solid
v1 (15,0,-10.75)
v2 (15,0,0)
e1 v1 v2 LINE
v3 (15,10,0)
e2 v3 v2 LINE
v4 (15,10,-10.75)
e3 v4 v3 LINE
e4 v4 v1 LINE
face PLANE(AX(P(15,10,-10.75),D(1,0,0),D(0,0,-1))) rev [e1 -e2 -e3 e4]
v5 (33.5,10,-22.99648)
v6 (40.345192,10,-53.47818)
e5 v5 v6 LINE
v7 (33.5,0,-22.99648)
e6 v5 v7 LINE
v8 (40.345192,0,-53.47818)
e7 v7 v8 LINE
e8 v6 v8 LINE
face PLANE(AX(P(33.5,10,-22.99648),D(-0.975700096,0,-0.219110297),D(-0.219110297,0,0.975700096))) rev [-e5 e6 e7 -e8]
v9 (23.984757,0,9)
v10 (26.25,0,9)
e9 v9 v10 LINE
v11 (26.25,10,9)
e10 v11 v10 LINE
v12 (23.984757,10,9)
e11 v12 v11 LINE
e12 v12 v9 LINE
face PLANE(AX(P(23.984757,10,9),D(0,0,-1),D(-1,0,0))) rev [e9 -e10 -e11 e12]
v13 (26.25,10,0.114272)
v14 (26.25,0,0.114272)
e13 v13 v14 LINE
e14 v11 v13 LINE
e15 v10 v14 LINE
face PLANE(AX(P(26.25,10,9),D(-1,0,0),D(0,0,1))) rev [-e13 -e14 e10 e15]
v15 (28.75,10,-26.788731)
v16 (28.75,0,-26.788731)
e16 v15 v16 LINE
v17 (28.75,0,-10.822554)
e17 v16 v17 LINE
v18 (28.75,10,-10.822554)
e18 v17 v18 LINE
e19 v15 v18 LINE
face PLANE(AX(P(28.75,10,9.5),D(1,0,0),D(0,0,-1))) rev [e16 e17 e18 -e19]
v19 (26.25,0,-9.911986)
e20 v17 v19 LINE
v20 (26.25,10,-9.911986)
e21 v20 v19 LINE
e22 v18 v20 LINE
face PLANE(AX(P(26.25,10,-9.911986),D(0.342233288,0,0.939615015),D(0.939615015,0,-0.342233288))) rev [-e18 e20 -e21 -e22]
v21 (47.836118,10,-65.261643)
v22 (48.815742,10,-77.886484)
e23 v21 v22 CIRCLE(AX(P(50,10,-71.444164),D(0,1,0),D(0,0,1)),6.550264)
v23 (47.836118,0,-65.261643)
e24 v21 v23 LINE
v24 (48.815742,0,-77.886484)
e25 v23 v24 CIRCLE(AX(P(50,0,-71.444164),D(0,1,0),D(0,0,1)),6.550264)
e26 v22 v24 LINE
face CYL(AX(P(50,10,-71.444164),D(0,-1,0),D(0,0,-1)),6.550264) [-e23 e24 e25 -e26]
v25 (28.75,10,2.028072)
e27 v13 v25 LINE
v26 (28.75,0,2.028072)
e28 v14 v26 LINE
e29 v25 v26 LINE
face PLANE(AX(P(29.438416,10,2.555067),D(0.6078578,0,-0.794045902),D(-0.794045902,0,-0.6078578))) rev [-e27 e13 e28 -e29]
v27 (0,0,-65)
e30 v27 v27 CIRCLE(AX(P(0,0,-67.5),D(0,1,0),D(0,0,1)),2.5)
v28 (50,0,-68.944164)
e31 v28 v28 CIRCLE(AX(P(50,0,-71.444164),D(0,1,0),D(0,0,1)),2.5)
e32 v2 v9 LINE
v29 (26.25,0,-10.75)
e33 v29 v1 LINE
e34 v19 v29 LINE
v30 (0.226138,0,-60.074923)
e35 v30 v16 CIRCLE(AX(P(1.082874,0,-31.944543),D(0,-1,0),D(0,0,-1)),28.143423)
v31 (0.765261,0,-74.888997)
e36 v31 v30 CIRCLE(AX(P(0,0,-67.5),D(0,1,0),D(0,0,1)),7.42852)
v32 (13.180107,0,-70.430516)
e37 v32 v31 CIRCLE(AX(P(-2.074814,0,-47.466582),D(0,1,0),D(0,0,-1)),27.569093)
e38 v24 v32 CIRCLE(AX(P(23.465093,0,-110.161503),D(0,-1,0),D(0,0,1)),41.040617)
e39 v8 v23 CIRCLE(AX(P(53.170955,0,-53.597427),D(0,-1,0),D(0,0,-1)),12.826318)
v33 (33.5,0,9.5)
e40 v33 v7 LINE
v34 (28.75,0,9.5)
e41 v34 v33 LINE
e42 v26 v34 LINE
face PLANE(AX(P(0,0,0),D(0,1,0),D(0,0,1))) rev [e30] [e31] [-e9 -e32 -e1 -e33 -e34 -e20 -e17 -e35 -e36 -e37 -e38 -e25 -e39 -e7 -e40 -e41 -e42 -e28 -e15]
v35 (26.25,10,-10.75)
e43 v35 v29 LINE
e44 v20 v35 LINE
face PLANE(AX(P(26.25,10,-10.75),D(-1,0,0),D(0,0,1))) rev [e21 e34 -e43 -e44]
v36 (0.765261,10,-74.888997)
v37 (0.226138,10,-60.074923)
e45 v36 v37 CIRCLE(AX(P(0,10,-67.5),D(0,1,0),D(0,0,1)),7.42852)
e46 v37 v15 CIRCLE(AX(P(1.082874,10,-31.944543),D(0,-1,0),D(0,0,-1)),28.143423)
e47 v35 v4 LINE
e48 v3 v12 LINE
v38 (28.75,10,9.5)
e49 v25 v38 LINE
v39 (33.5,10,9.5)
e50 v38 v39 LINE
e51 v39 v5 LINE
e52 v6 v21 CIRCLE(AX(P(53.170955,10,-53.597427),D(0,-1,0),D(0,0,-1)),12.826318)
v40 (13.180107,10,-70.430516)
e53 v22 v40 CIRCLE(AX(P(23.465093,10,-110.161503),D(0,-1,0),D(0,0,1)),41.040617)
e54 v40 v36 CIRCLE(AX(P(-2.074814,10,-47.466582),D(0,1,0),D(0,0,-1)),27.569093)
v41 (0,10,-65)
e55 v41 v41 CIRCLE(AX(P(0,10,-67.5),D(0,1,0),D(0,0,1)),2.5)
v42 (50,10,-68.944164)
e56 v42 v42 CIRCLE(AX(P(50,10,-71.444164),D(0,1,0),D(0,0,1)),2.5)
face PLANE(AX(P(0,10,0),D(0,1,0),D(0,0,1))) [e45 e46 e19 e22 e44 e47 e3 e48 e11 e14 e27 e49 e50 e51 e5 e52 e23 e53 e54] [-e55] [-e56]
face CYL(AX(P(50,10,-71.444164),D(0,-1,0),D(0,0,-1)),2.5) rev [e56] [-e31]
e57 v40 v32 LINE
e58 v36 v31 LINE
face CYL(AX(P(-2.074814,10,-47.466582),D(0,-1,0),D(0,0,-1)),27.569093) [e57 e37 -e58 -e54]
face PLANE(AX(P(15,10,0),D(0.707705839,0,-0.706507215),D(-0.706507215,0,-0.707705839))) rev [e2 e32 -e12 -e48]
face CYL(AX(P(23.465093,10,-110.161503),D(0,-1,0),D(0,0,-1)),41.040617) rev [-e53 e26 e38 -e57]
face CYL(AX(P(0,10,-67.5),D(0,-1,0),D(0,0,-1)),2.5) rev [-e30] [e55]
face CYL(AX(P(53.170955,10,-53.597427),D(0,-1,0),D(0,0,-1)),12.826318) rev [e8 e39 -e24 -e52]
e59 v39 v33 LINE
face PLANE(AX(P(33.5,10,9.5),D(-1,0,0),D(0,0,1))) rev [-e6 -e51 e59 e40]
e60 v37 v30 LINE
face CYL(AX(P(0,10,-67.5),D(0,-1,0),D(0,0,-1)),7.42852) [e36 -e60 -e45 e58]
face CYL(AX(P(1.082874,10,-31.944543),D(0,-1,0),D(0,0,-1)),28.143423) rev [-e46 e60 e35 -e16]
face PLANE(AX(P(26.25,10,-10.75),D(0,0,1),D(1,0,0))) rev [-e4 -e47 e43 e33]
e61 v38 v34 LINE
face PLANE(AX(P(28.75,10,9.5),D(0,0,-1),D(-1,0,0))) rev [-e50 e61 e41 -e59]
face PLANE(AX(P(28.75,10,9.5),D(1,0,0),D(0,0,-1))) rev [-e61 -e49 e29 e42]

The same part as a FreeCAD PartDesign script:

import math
import FreeCAD as App
import Part
import Sketcher

V = App.Vector
Q = App.Units.Quantity


def add_polygon(sketch, points):
    """Adds a closed chain of lines whose ends are joined by coincident constraints."""
    first, n = sketch.GeometryCount, len(points)
    for a, b in zip(points, points[1:] + points[:1]):
        sketch.addGeometry(Part.LineSegment(App.Vector(*a, 0), App.Vector(*b, 0)), False)
    for i in range(n):
        sketch.addConstraint(Sketcher.Constraint("Coincident", first + i, 2, first + (i + 1) % n, 1))

doc = App.newDocument("Part")
body = doc.addObject("PartDesign::Body", "Body")

sketch1 = body.newObject("Sketcher::SketchObject", "Sketch")
sketch1.AttachmentSupport = (doc.getObject("XZ_Plane"), [""])
sketch1.MapMode = "FlatFace"
add_polygon(sketch1, [(-15, -10.8), (-26.2, -10.8), (-26.2, -9.9), (-29.4, -11.1), (-29.4, 2.6), (-26.2, 0.1), (-26.2, 9), (-24, 9), (-15, 0)])
sketch1.addConstraint([
    Sketcher.Constraint("Horizontal", 0),
    Sketcher.Constraint("Vertical", 1),
    Sketcher.Constraint("Vertical", 3),
    Sketcher.Constraint("Vertical", 5),
    Sketcher.Constraint("Horizontal", 6),
    Sketcher.Constraint("Vertical", 8),
    Sketcher.Constraint("PointOnObject", 7, 2, -1),
    Sketcher.Constraint("Vertical", 1, 2, 4, 2),
    Sketcher.Constraint("DistanceY", -1, 1, 5, 2, Q("9 mm")),
    Sketcher.Constraint("DistanceX", 7, 2, -1, 1, Q("15 mm")),
    Sketcher.Constraint("DistanceX", 0, 2, 0, 1, Q("11.25 mm")),
    Sketcher.Constraint("DistanceY", 8, 2, 8, 1, Q("10.75 mm")),
    Sketcher.Constraint("DistanceY", 3, 1, 3, 2, Q("13.628361 mm")),
    Sketcher.Constraint("Distance", 2, Q("3.393321 mm")),
    Sketcher.Constraint("Distance", 7, Q("12.717148 mm")),
    Sketcher.Constraint("DistanceY", 1, 1, 1, 2, Q("0.838014 mm")),
    Sketcher.Constraint("DistanceY", 5, 1, 5, 2, Q("8.885728 mm")),
    Sketcher.Constraint("DistanceX", 3, 2, 6, 2, Q("5.453659 mm")),
])
pad1 = body.newObject("PartDesign::Pad", "Pad")
pad1.Profile = sketch1
pad1.Length = 10
pad1.Reversed = True

sketch2 = body.newObject("Sketcher::SketchObject", "Sketch001")
sketch2.AttachmentSupport = (doc.getObject("XZ_Plane"), [""])
sketch2.MapMode = "FlatFace"
sketch2.addGeometry(Part.Circle(V(-21, -4, 0), V(0, 0, 1), 23), False)
sketch2.addConstraint([
    Sketcher.Constraint("Diameter", 0, Q("45.678597 mm")),
    Sketcher.Constraint("DistanceX", 0, 3, -1, 1, Q("20.905433 mm")),
    Sketcher.Constraint("DistanceY", 0, 3, -1, 1, Q("4.192616 mm")),
])
pocket1 = body.newObject("PartDesign::Pocket", "Pocket")
pocket1.Profile = sketch2
pocket1.Length = 10
body2 = doc.addObject("PartDesign::Body", "Body001")

sketch3 = body2.newObject("Sketcher::SketchObject", "Sketch002")
sketch3.AttachmentSupport = (doc.getObject("XZ_Plane001"), [""])
sketch3.MapMode = "FlatFace"
add_polygon(sketch3, [(26.2, -9.9), (26.2, -10.8), (15, -10.8), (15, 0), (24, 9), (26.2, 9), (26.2, 0.1), (29.4, 2.6), (29.4, -11.1)])
sketch3.addConstraint([
    Sketcher.Constraint("Vertical", 0),
    Sketcher.Constraint("Horizontal", 1),
    Sketcher.Constraint("Vertical", 2),
    Sketcher.Constraint("Horizontal", 4),
    Sketcher.Constraint("Vertical", 5),
    Sketcher.Constraint("Vertical", 7),
    Sketcher.Constraint("PointOnObject", 2, 2, -1),
    Sketcher.Constraint("Vertical", 0, 2, 4, 2),
    Sketcher.Constraint("DistanceX", -1, 1, 1, 2, Q("15 mm")),
    Sketcher.Constraint("DistanceY", -1, 1, 3, 2, Q("9 mm")),
    Sketcher.Constraint("DistanceX", 1, 2, 1, 1, Q("11.25 mm")),
    Sketcher.Constraint("DistanceY", 2, 1, 2, 2, Q("10.75 mm")),
    Sketcher.Constraint("DistanceY", 7, 2, 7, 1, Q("13.628361 mm")),
    Sketcher.Constraint("Distance", 3, Q("12.717148 mm")),
    Sketcher.Constraint("Distance", 8, Q("3.393321 mm")),
    Sketcher.Constraint("DistanceY", 0, 2, 0, 1, Q("0.838014 mm")),
    Sketcher.Constraint("DistanceY", 5, 2, 5, 1, Q("8.885728 mm")),
    Sketcher.Constraint("DistanceX", 3, 2, 6, 2, Q("5.453659 mm")),
])
pad2 = body2.newObject("PartDesign::Pad", "Pad001")
pad2.Profile = sketch3
pad2.Length = 10
pad2.Reversed = True

sketch4 = body2.newObject("Sketcher::SketchObject", "Sketch003")
sketch4.AttachmentSupport = (doc.getObject("XZ_Plane001"), [""])
sketch4.MapMode = "FlatFace"
sketch4.addGeometry([
    Part.LineSegment(V(28.8, 9.5, 0), V(33.5, 9.5, 0)),
    Part.LineSegment(V(33.5, 9.5, 0), V(33.5, -23, 0)),
    Part.LineSegment(V(33.5, -23, 0), V(40.3, -53.5, 0)),
    Part.ArcOfCircle(Part.Circle(V(53.2, -53.6, 0), V(0, 0, 1), 12.8), math.radians(179), math.radians(245)),
    Part.ArcOfCircle(Part.Circle(V(50, -71.4, 0), V(0, 0, 1), 6.6), math.radians(-100), math.radians(109)),
    Part.ArcOfCircle(Part.Circle(V(23.5, -110.2, 0), V(0, 0, 1), 41), math.radians(52), math.radians(105)),
    Part.ArcOfCircle(Part.Circle(V(-2.1, -47.5, 0), V(0, 0, 1), 27.6), math.radians(-84), math.radians(-56)),
    Part.ArcOfCircle(Part.Circle(V(0, -67.5, 0), V(0, 0, 1), 7.4), math.radians(88), math.radians(276)),
    Part.ArcOfCircle(Part.Circle(V(1.1, -31.9, 0), V(0, 0, 1), 28.1), math.radians(-92), math.radians(11)),
    Part.LineSegment(V(28.8, -26.8, 0), V(28.8, 9.5, 0)),
    Part.Circle(V(0, -67.5, 0), V(0, 0, 1), 2.5),
    Part.Circle(V(50, -71.4, 0), V(0, 0, 1), 2.5),
], False)
sketch4.addConstraint([
    Sketcher.Constraint("Coincident", 0, 2, 1, 1),
    Sketcher.Constraint("Coincident", 1, 2, 2, 1),
    Sketcher.Constraint("Coincident", 2, 2, 3, 1),
    Sketcher.Constraint("Coincident", 3, 2, 4, 2),
    Sketcher.Constraint("Coincident", 4, 1, 5, 1),
    Sketcher.Constraint("Coincident", 5, 2, 6, 2),
    Sketcher.Constraint("Tangent", 6, 1, 7, 2),
    Sketcher.Constraint("Tangent", 7, 1, 8, 1),
    Sketcher.Constraint("Coincident", 8, 2, 9, 1),
    Sketcher.Constraint("Coincident", 9, 2, 0, 1),
    Sketcher.Constraint("Horizontal", 0),
    Sketcher.Constraint("Vertical", 1),
    Sketcher.Constraint("Vertical", 9),
    Sketcher.Constraint("Coincident", 10, 3, 7, 3),
    Sketcher.Constraint("Coincident", 11, 3, 4, 3),
    Sketcher.Constraint("Equal", 10, 11),
    Sketcher.Constraint("PointOnObject", 7, 3, -2),
    Sketcher.Constraint("Diameter", 10, Q("5 mm")),
    Sketcher.Constraint("DistanceX", -1, 1, 4, 3, Q("50 mm")),
    Sketcher.Constraint("DistanceX", 0, 1, 0, 2, Q("4.75 mm")),
    Sketcher.Constraint("DistanceY", 7, 3, -1, 1, Q("67.5 mm")),
    Sketcher.Constraint("DistanceX", -1, 1, 0, 2, Q("33.5 mm")),
    Sketcher.Constraint("DistanceY", -1, 1, 0, 2, Q("9.5 mm")),
    Sketcher.Constraint("Radius", 7, Q("7.42852 mm")),
    Sketcher.Constraint("Radius", 3, Q("12.826318 mm")),
    Sketcher.Constraint("Radius", 4, Q("6.550264 mm")),
    Sketcher.Constraint("Radius", 5, Q("41.040617 mm")),
    Sketcher.Constraint("Radius", 6, Q("27.569093 mm")),
    Sketcher.Constraint("Radius", 8, Q("28.143423 mm")),
    Sketcher.Constraint("DistanceY", 1, 2, 1, 1, Q("32.49648 mm")),
    Sketcher.Constraint("DistanceY", 9, 1, 9, 2, Q("36.288731 mm")),
    Sketcher.Constraint("DistanceY", 2, 2, 1, 2, Q("30.4817 mm")),
    Sketcher.Constraint("Distance", 2, Q("31.24085 mm")),
    Sketcher.Constraint("DistanceY", 6, 3, -1, 1, Q("47.466582 mm")),
    Sketcher.Constraint("DistanceX", -1, 1, 4, 1, Q("48.815742 mm")),
    Sketcher.Constraint("DistanceY", 5, 3, 4, 3, Q("38.717339 mm")),
    Sketcher.Constraint("DistanceX", 6, 3, 3, 3, Q("55.245769 mm")),
    Sketcher.Constraint("DistanceY", 4, 3, 6, 3, Q("23.977582 mm")),
])
pad3 = body2.newObject("PartDesign::Pad", "Pad002")
pad3.Profile = sketch4
pad3.Length = 10
pad3.Reversed = True

doc.recompute()
